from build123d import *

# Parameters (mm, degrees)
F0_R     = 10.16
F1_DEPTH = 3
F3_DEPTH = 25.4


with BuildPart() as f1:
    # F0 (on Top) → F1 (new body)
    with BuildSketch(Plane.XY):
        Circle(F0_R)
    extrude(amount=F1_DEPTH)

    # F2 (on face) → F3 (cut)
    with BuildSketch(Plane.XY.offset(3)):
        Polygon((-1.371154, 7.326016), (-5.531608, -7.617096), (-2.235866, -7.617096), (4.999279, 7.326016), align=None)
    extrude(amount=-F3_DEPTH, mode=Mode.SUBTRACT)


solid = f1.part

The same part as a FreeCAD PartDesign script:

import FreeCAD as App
import Part
import Sketcher

V = App.Vector
Q = App.Units.Quantity

doc = App.newDocument("Part")
body = doc.addObject("PartDesign::Body", "Body")

sketch1 = doc.addObject("Sketcher::SketchObject", "Sketch")
body.addObject(sketch1)
sketch1.AttachmentSupport = (doc.XY_Plane, [""])
sketch1.MapMode = "FlatFace"
sketch1.addGeometry(Part.Circle(V(0, 0, 0), V(0, 0, 1), 10), False)
sketch1.addConstraint([
    Sketcher.Constraint("Coincident", 0, 3, -1, 1),
    Sketcher.Constraint("Diameter", 0, Q("0.8 in")),
])
pad1 = doc.addObject("PartDesign::Pad", "Pad")
body.addObject(pad1)
pad1.Profile = sketch1
pad1.Length = 3

sketch2 = doc.addObject("Sketcher::SketchObject", "Sketch001")
body.addObject(sketch2)
sketch2.AttachmentSupport = (doc.XY_Plane, [""])
sketch2.MapMode = "FlatFace"
sketch2.AttachmentOffset = App.Placement(V(0, 0, 3), App.Rotation())
sketch2.addGeometry([
    Part.LineSegment(V(-1.4, 7.3, 0), V(-5.5, -7.6, 0)),
    Part.LineSegment(V(-5.5, -7.6, 0), V(-2.2, -7.6, 0)),
    Part.LineSegment(V(-2.2, -7.6, 0), V(5, 7.3, 0)),
    Part.LineSegment(V(5, 7.3, 0), V(-1.4, 7.3, 0)),
], False)
sketch2.addConstraint([
    Sketcher.Constraint("Coincident", 0, 2, 1, 1),
    Sketcher.Constraint("Coincident", 1, 2, 2, 1),
    Sketcher.Constraint("Coincident", 2, 2, 3, 1),
    Sketcher.Constraint("Coincident", 3, 2, 0, 1),
    Sketcher.Constraint("Horizontal", 1),
    Sketcher.Constraint("Horizontal", 3),
    Sketcher.Constraint("Distance", 0, 15.511479),
    Sketcher.Constraint("DistanceX", 1, 1, 1, 2, 3.295742),
    Sketcher.Constraint("DistanceX", 3, 2, 3, 1, 6.370433),
    Sketcher.Constraint("DistanceX", 0, 2, -1, 1, 5.531608),
    Sketcher.Constraint("DistanceX", -1, 1, 2, 2, 4.999279),
    Sketcher.Constraint("DistanceY", 0, 2, -1, 1, 7.617096),
])
pocket1 = doc.addObject("PartDesign::Pocket", "Pocket")
body.addObject(pocket1)
pocket1.Profile = sketch2
pocket1.Length = Q("1 in")

doc.recompute()
